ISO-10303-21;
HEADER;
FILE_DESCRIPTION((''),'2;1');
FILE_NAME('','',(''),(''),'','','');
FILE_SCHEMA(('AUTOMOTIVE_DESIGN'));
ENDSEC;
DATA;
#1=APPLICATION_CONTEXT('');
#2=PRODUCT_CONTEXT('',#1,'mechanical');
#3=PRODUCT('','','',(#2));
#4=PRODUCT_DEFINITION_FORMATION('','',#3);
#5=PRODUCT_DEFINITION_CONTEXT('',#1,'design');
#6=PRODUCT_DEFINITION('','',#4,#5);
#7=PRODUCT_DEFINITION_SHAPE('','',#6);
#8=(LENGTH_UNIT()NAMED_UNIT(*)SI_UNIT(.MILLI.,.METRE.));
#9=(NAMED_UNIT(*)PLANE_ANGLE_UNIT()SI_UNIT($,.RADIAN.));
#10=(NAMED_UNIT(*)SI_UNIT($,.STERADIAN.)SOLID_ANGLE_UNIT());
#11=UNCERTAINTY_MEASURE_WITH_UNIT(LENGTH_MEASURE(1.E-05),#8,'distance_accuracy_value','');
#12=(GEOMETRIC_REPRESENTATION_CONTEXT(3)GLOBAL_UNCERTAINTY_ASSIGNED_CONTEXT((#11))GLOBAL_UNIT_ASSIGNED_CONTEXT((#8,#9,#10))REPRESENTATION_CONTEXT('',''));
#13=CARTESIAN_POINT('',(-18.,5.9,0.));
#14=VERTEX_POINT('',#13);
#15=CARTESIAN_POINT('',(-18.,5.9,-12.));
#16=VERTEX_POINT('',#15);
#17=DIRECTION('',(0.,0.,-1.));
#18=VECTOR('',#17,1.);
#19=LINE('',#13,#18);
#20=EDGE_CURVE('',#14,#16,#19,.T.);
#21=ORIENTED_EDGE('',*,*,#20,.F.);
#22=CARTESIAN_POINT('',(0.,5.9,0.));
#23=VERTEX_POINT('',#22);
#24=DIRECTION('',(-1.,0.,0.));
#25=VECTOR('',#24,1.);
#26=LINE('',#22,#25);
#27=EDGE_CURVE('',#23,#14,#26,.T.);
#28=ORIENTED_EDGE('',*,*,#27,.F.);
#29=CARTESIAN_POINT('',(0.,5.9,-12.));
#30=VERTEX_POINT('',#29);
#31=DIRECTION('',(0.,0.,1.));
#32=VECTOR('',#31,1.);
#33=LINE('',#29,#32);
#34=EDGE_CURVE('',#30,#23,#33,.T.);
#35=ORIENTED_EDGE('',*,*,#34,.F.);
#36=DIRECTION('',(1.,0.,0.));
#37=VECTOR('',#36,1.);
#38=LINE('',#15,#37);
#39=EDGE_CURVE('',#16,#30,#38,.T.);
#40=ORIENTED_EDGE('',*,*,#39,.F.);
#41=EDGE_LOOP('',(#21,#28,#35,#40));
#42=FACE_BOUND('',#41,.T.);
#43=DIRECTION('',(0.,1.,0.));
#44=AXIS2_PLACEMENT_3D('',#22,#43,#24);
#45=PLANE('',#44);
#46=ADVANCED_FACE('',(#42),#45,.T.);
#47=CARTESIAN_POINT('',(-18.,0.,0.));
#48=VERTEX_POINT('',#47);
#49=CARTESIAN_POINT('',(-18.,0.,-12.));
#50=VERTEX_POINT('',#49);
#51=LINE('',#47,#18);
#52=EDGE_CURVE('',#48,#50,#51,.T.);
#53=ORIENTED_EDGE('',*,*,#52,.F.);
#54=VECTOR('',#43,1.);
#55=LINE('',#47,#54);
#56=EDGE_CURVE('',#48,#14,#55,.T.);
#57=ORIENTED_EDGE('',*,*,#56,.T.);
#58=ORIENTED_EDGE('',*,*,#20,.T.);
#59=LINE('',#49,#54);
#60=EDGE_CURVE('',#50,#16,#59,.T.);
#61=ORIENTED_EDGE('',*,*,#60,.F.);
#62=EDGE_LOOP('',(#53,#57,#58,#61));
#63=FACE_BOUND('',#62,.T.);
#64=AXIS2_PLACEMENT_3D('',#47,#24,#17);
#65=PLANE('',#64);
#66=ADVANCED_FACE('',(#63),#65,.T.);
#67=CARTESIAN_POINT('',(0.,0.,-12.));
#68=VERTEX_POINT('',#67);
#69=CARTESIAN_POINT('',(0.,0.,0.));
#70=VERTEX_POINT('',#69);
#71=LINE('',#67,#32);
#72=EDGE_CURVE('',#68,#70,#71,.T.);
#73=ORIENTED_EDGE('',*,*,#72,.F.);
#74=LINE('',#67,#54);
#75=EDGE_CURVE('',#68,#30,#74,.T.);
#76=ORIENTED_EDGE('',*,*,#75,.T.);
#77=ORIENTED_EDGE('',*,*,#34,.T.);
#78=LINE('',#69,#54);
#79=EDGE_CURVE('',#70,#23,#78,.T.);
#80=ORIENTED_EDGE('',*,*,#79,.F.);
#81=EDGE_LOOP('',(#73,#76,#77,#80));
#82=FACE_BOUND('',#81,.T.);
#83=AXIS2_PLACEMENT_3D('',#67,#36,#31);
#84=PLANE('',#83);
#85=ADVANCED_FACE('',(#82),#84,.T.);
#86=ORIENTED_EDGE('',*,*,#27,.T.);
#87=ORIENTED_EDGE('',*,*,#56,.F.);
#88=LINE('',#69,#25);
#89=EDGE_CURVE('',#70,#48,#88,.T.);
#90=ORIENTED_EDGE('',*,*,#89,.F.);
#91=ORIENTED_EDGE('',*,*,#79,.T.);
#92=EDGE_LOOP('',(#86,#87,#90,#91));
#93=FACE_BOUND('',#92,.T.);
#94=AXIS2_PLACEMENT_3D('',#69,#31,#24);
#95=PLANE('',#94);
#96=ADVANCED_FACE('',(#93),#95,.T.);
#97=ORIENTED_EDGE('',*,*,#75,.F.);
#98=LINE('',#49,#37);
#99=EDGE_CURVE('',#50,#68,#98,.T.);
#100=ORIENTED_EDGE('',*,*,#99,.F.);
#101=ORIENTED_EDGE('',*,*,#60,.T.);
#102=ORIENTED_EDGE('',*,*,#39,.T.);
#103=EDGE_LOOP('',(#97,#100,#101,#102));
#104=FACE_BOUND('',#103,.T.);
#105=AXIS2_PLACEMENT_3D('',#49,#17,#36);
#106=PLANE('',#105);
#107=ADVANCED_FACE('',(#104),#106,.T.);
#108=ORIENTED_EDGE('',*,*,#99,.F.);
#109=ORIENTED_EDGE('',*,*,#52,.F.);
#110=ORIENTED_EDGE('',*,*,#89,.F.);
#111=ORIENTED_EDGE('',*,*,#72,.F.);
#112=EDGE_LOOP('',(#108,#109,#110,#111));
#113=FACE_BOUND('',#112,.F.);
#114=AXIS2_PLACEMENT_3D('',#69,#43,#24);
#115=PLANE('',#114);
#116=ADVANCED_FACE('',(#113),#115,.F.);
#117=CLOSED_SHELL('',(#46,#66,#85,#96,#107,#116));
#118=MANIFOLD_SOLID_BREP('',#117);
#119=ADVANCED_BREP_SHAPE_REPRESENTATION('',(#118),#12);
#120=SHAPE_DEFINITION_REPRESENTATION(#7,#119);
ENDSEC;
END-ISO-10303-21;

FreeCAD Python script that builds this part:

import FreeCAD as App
import Part
import Sketcher

doc = App.newDocument("Part")
params = doc.addObject("Spreadsheet::Sheet", "Params")
for row, (alias, value) in enumerate([
    ("sketch1_width", "18 mm"),
    ("sketch1_height", "12 mm"),
    ("pad1_length", "5.9 mm"),
], start=1):
    params.set(f"A{row}", alias)
    params.set(f"B{row}", "=" + value)
    params.setAlias(f"B{row}", alias)

body = doc.addObject("PartDesign::Body", "Body")

# Sketch on XZ plane
sketch1 = doc.addObject("Sketcher::SketchObject", "Sketch")
body.addObject(sketch1)
sketch1.AttachmentSupport = (doc.XZ_Plane, [""])
sketch1.MapMode = "FlatFace"
sketch1.addGeometry(Part.LineSegment(App.Vector(-18, 0, 0), App.Vector(0, 0, 0)), False)
sketch1.addGeometry(Part.LineSegment(App.Vector(0, 0, 0), App.Vector(0, -12, 0)), False)
sketch1.addGeometry(Part.LineSegment(App.Vector(0, -12, 0), App.Vector(-18, -12, 0)), False)
sketch1.addGeometry(Part.LineSegment(App.Vector(-18, -12, 0), App.Vector(-18, 0, 0)), False)
sketch1.addConstraint(Sketcher.Constraint("Coincident", 0, 2, 1, 1))
sketch1.addConstraint(Sketcher.Constraint("Coincident", 1, 2, 2, 1))
sketch1.addConstraint(Sketcher.Constraint("Coincident", 2, 2, 3, 1))
sketch1.addConstraint(Sketcher.Constraint("Coincident", 3, 2, 0, 1))
sketch1.addConstraint(Sketcher.Constraint("Horizontal", 0))
sketch1.addConstraint(Sketcher.Constraint("Vertical", 1))
sketch1.addConstraint(Sketcher.Constraint("Horizontal", 2))
sketch1.addConstraint(Sketcher.Constraint("Vertical", 3))
sketch1.addConstraint(Sketcher.Constraint("Coincident", 0, 2, -1, 1))
sketch1.addConstraint(Sketcher.Constraint("DistanceX", 0, 1, 0, 2, 18.0))
sketch1.addConstraint(Sketcher.Constraint("DistanceY", 1, 2, 1, 1, 12.0))
sketch1.setExpression("Constraints[9]", "Params.sketch1_width")
sketch1.setExpression("Constraints[10]", "Params.sketch1_height")
pad1 = doc.addObject("PartDesign::Pad", "Pad")
body.addObject(pad1)
pad1.Profile = sketch1
pad1.setExpression("Length", "Params.pad1_length")
pad1.Reversed = True

doc.recompute()
